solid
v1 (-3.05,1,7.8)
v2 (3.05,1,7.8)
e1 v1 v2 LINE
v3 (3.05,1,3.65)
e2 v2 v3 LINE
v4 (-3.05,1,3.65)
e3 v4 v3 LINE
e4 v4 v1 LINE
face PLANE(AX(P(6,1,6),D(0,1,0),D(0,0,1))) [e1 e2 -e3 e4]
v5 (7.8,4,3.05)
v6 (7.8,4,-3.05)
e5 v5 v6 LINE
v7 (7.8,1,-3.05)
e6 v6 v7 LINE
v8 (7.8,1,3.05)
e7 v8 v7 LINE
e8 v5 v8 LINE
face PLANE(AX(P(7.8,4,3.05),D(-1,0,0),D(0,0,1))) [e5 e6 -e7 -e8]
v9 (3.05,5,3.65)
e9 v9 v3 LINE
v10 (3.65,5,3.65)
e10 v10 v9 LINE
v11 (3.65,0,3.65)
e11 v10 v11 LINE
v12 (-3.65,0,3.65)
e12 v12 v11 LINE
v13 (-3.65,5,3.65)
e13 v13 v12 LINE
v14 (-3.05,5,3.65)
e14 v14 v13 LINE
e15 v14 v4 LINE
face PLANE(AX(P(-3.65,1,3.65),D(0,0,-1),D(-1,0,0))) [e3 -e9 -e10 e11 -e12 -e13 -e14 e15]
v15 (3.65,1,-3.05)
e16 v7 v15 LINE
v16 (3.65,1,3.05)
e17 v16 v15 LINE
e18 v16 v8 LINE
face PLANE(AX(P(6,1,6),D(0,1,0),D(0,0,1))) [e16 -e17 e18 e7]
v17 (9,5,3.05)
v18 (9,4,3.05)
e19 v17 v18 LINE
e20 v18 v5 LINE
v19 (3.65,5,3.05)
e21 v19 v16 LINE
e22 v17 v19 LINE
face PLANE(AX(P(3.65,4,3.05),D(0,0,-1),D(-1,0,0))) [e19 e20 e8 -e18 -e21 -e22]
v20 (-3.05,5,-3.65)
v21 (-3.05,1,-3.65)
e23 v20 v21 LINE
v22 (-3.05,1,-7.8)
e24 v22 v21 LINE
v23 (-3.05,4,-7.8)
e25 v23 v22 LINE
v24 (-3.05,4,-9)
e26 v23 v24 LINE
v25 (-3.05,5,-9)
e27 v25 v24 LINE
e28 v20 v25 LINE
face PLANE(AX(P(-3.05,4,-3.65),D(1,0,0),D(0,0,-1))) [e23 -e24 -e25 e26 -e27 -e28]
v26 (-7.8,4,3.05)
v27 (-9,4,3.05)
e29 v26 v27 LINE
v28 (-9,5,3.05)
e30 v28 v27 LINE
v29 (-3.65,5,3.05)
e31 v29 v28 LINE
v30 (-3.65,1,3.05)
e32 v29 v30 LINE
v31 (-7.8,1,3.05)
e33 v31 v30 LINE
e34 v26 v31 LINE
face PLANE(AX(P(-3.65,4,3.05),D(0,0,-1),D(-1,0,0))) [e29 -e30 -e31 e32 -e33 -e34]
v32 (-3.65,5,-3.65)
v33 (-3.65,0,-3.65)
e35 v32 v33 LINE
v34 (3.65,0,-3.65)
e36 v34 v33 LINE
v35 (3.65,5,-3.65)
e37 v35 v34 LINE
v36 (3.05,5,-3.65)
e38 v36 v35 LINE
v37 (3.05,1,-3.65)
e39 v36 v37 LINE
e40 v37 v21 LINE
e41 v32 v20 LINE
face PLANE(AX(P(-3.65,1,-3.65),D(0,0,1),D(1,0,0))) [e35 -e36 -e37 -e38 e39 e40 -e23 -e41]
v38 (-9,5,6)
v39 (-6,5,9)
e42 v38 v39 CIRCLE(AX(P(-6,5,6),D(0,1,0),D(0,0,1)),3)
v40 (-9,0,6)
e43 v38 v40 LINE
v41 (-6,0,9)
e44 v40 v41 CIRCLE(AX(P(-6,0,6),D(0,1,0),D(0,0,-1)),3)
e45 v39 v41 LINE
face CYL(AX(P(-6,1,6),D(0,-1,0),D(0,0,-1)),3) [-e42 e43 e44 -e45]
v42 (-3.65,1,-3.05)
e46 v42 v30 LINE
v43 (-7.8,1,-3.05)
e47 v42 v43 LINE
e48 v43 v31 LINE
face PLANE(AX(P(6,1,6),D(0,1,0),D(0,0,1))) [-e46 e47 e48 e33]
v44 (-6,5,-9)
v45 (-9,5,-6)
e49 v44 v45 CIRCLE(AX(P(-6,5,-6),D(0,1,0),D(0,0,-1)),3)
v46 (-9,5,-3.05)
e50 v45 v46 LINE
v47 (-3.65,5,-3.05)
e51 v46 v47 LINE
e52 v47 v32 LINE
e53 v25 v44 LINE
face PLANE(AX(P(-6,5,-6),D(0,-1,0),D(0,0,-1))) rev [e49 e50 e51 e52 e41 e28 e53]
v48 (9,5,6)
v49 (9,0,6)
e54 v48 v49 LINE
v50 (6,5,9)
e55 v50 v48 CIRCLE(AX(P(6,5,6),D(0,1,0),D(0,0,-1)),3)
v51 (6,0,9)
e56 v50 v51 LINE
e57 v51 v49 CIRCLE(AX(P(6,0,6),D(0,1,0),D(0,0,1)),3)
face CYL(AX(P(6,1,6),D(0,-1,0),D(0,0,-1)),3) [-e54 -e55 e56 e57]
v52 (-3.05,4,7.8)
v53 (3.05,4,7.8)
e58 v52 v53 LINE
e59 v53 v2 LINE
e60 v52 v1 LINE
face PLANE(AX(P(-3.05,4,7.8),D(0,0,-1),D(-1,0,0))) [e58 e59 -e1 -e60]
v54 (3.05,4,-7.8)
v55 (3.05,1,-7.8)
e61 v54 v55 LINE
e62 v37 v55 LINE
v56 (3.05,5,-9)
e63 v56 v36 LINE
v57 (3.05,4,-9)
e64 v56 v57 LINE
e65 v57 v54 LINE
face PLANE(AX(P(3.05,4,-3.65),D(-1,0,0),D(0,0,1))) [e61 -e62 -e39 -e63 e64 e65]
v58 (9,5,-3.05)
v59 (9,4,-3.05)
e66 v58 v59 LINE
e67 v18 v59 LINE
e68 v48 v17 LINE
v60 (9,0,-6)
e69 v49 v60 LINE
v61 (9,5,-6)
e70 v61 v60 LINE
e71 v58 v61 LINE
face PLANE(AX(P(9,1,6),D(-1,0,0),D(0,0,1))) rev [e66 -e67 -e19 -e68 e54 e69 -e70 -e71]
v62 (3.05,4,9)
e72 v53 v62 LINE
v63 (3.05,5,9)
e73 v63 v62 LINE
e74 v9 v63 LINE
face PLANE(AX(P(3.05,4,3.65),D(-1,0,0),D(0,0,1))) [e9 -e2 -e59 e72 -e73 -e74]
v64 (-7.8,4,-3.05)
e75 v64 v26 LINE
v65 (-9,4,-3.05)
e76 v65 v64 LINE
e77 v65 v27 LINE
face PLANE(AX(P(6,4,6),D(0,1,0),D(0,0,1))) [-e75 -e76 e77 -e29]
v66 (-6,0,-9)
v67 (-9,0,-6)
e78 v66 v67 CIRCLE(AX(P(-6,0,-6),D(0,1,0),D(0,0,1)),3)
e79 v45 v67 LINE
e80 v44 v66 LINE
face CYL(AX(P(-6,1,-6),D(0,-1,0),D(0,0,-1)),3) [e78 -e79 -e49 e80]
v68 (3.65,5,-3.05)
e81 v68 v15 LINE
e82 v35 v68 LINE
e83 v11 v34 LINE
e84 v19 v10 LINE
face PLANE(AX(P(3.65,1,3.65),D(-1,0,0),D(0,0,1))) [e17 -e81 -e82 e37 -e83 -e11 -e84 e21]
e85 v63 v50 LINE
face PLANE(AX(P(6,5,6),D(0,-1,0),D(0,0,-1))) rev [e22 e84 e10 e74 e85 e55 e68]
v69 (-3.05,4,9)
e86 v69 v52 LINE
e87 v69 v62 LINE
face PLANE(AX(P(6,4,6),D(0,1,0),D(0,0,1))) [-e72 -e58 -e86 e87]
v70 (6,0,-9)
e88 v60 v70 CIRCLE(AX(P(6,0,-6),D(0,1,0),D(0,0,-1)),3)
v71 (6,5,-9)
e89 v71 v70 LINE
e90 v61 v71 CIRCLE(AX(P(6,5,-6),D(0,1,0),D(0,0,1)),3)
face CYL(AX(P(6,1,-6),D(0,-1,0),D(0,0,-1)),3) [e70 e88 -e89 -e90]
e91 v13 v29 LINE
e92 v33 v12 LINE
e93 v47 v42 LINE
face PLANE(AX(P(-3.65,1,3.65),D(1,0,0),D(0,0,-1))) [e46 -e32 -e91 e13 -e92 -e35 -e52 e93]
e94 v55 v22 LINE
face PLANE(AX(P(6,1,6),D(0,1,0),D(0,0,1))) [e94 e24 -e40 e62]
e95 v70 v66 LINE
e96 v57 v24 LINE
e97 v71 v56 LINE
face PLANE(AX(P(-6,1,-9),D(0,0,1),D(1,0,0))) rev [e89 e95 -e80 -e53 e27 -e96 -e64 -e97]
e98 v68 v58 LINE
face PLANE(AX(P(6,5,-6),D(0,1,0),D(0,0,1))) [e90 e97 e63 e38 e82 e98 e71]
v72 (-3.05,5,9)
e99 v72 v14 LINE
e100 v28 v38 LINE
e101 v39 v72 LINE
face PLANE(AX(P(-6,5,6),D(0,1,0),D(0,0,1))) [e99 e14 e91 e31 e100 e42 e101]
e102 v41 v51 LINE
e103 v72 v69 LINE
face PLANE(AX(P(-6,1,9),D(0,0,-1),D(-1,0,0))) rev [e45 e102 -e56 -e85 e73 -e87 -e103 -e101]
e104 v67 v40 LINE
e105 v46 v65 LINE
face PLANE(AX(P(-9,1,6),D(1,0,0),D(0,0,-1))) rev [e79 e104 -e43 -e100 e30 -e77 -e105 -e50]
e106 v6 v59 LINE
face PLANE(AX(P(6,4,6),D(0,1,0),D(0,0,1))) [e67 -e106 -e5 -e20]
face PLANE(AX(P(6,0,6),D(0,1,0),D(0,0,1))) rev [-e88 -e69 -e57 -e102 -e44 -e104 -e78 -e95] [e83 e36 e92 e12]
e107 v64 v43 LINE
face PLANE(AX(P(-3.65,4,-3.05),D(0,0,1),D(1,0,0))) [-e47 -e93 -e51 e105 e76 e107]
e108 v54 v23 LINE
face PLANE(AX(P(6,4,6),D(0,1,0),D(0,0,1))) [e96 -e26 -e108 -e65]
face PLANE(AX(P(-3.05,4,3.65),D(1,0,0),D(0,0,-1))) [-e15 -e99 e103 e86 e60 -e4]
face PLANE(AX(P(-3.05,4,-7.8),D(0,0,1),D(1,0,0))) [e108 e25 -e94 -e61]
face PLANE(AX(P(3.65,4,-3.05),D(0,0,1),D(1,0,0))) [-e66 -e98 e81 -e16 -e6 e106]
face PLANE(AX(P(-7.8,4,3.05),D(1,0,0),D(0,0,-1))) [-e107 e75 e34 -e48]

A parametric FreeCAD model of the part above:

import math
import FreeCAD as App
import Part
import Sketcher

V = App.Vector

doc = App.newDocument("Part")
body = doc.addObject("PartDesign::Body", "Body")

# Sketch on XZ plane
sketch1 = doc.addObject("Sketcher::SketchObject", "Sketch")
body.addObject(sketch1)
sketch1.AttachmentSupport = (doc.XZ_Plane, [""])
sketch1.MapMode = "FlatFace"
sketch1.addGeometry([
    Part.LineSegment(V(-6, 9, 0), V(6, 9, 0)),  # 0
    Part.ArcOfCircle(Part.Circle(V(6, 6, 0), V(0, 0, 1), 3), math.radians(0), math.radians(90)),  # 1
    Part.LineSegment(V(9, 6, 0), V(9, -6, 0)),  # 2
    Part.ArcOfCircle(Part.Circle(V(6, -6, 0), V(0, 0, 1), 3), math.radians(-90), math.radians(0)),  # 3
    Part.LineSegment(V(6, -9, 0), V(-6, -9, 0)),  # 4
    Part.ArcOfCircle(Part.Circle(V(-6, -6, 0), V(0, 0, 1), 3), math.radians(180), math.radians(270)),  # 5
    Part.LineSegment(V(-9, -6, 0), V(-9, 6, 0)),  # 6
    Part.ArcOfCircle(Part.Circle(V(-6, 6, 0), V(0, 0, 1), 3), math.radians(90), math.radians(180)),  # 7
    Part.LineSegment(V(3.6, 3.6, 0), V(-3.6, 3.6, 0)),  # 8
    Part.LineSegment(V(-3.6, 3.6, 0), V(-3.6, -3.6, 0)),  # 9
    Part.LineSegment(V(-3.6, -3.6, 0), V(3.6, -3.6, 0)),  # 10
    Part.LineSegment(V(3.6, -3.6, 0), V(3.6, 3.6, 0)),  # 11
], False)
sketch1.addConstraint([
    Sketcher.Constraint("Tangent", 0, 2, 1, 2),
    Sketcher.Constraint("Tangent", 1, 1, 2, 1),
    Sketcher.Constraint("Tangent", 2, 2, 3, 2),
    Sketcher.Constraint("Tangent", 3, 1, 4, 1),
    Sketcher.Constraint("Tangent", 4, 2, 5, 2),
    Sketcher.Constraint("Tangent", 5, 1, 6, 1),
    Sketcher.Constraint("Tangent", 6, 2, 7, 2),
    Sketcher.Constraint("Tangent", 7, 1, 0, 1),
    Sketcher.Constraint("Coincident", 8, 2, 9, 1),
    Sketcher.Constraint("Coincident", 9, 2, 10, 1),
    Sketcher.Constraint("Coincident", 10, 2, 11, 1),
    Sketcher.Constraint("Coincident", 11, 2, 8, 1),
    Sketcher.Constraint("Horizontal", 0),
    Sketcher.Constraint("Vertical", 2),
    Sketcher.Constraint("Horizontal", 4),
    Sketcher.Constraint("Vertical", 6),
    Sketcher.Constraint("Horizontal", 8),
    Sketcher.Constraint("Vertical", 9),
    Sketcher.Constraint("Horizontal", 10),
    Sketcher.Constraint("Vertical", 11),
    Sketcher.Constraint("Equal", 1, 3),
    Sketcher.Constraint("Equal", 3, 5),
    Sketcher.Constraint("Equal", 5, 7),
    Sketcher.Constraint("Symmetric", 1, 3, 5, 3, -1, 1),
    Sketcher.Constraint("Symmetric", 8, 2, 10, 2, -1, 1),
    Sketcher.Constraint("Equal", 4, 2),
    Sketcher.Constraint("Equal", 10, 9),
    Sketcher.Constraint("Radius", 1, 3.0),
    Sketcher.Constraint("DistanceX", 0, 1, 0, 2, 12.0),
    Sketcher.Constraint("DistanceX", 8, 2, 8, 1, 7.3),
])
pad1 = doc.addObject("PartDesign::Pad", "Pad")
body.addObject(pad1)
pad1.Profile = sketch1
pad1.Length = 1
pad1.Reversed = True

# Sketch on XZ plane
sketch2 = doc.addObject("Sketcher::SketchObject", "Sketch001")
body.addObject(sketch2)
sketch2.AttachmentSupport = (doc.XZ_Plane, [""])
sketch2.MapMode = "FlatFace"
sketch2.AttachmentOffset = App.Placement(V(0, 0, -1), App.Rotation())
sketch2.addGeometry([
    Part.LineSegment(V(-6, 9, 0), V(6, 9, 0)),  # 0
    Part.ArcOfCircle(Part.Circle(V(6, 6, 0), V(0, 0, 1), 3), math.radians(0), math.radians(90)),  # 1
    Part.LineSegment(V(9, 6, 0), V(9, -6, 0)),  # 2
    Part.ArcOfCircle(Part.Circle(V(6, -6, 0), V(0, 0, 1), 3), math.radians(-90), math.radians(0)),  # 3
    Part.LineSegment(V(6, -9, 0), V(-6, -9, 0)),  # 4
    Part.ArcOfCircle(Part.Circle(V(-6, -6, 0), V(0, 0, 1), 3), math.radians(180), math.radians(270)),  # 5
    Part.LineSegment(V(-9, -6, 0), V(-9, 6, 0)),  # 6
    Part.ArcOfCircle(Part.Circle(V(-6, 6, 0), V(0, 0, 1), 3), math.radians(90), math.radians(180)),  # 7
    Part.LineSegment(V(-3, 7.8, 0), V(-3, 3.6, 0)),  # 8
    Part.LineSegment(V(-3, 3.6, 0), V(-3.6, 3.6, 0)),  # 9
    Part.LineSegment(V(-3.6, 3.6, 0), V(-3.6, 3, 0)),  # 10
    Part.LineSegment(V(-3.6, 3, 0), V(-7.8, 3, 0)),  # 11
    Part.LineSegment(V(-7.8, 3, 0), V(-7.8, -3, 0)),  # 12
    Part.LineSegment(V(-7.8, -3, 0), V(-3.6, -3, 0)),  # 13
    Part.LineSegment(V(-3.6, -3, 0), V(-3.6, -3.6, 0)),  # 14
    Part.LineSegment(V(-3.6, -3.6, 0), V(-3, -3.6, 0)),  # 15
    Part.LineSegment(V(-3, -3.6, 0), V(-3, -7.8, 0)),  # 16
    Part.LineSegment(V(-3, -7.8, 0), V(3, -7.8, 0)),  # 17
    Part.LineSegment(V(3, -7.8, 0), V(3, -3.6, 0)),  # 18
    Part.LineSegment(V(3, -3.6, 0), V(3.6, -3.6, 0)),  # 19
    Part.LineSegment(V(3.6, -3.6, 0), V(3.6, -3, 0)),  # 20
    Part.LineSegment(V(3.6, -3, 0), V(7.8, -3, 0)),  # 21
    Part.LineSegment(V(7.8, -3, 0), V(7.8, 3, 0)),  # 22
    Part.LineSegment(V(7.8, 3, 0), V(3.6, 3, 0)),  # 23
    Part.LineSegment(V(3.6, 3, 0), V(3.6, 3.6, 0)),  # 24
    Part.LineSegment(V(3.6, 3.6, 0), V(3, 3.6, 0)),  # 25
    Part.LineSegment(V(3, 3.6, 0), V(3, 7.8, 0)),  # 26
    Part.LineSegment(V(3, 7.8, 0), V(-3, 7.8, 0)),  # 27
], False)
sketch2.addConstraint([
    Sketcher.Constraint("Tangent", 0, 2, 1, 2),
    Sketcher.Constraint("Tangent", 1, 1, 2, 1),
    Sketcher.Constraint("Tangent", 2, 2, 3, 2),
    Sketcher.Constraint("Tangent", 3, 1, 4, 1),
    Sketcher.Constraint("Tangent", 4, 2, 5, 2),
    Sketcher.Constraint("Tangent", 5, 1, 6, 1),
    Sketcher.Constraint("Tangent", 6, 2, 7, 2),
    Sketcher.Constraint("Tangent", 7, 1, 0, 1),
    Sketcher.Constraint("Coincident", 8, 2, 9, 1),
    Sketcher.Constraint("Coincident", 9, 2, 10, 1),
    Sketcher.Constraint("Coincident", 10, 2, 11, 1),
    Sketcher.Constraint("Coincident", 11, 2, 12, 1),
    Sketcher.Constraint("Coincident", 12, 2, 13, 1),
    Sketcher.Constraint("Coincident", 13, 2, 14, 1),
    Sketcher.Constraint("Coincident", 14, 2, 15, 1),
    Sketcher.Constraint("Coincident", 15, 2, 16, 1),
    Sketcher.Constraint("Coincident", 16, 2, 17, 1),
    Sketcher.Constraint("Coincident", 17, 2, 18, 1),
    Sketcher.Constraint("Coincident", 18, 2, 19, 1),
    Sketcher.Constraint("Coincident", 19, 2, 20, 1),
    Sketcher.Constraint("Coincident", 20, 2, 21, 1),
    Sketcher.Constraint("Coincident", 21, 2, 22, 1),
    Sketcher.Constraint("Coincident", 22, 2, 23, 1),
    Sketcher.Constraint("Coincident", 23, 2, 24, 1),
    Sketcher.Constraint("Coincident", 24, 2, 25, 1),
    Sketcher.Constraint("Coincident", 25, 2, 26, 1),
    Sketcher.Constraint("Coincident", 26, 2, 27, 1),
    Sketcher.Constraint("Coincident", 27, 2, 8, 1),
    Sketcher.Constraint("Horizontal", 0),
    Sketcher.Constraint("Vertical", 2),
    Sketcher.Constraint("Horizontal", 4),
    Sketcher.Constraint("Vertical", 6),
    Sketcher.Constraint("Vertical", 8),
    Sketcher.Constraint("Horizontal", 9),
    Sketcher.Constraint("Vertical", 10),
    Sketcher.Constraint("Horizontal", 11),
    Sketcher.Constraint("Vertical", 12),
    Sketcher.Constraint("Horizontal", 13),
    Sketcher.Constraint("Vertical", 14),
    Sketcher.Constraint("Horizontal", 15),
    Sketcher.Constraint("Vertical", 16),
    Sketcher.Constraint("Horizontal", 17),
    Sketcher.Constraint("Vertical", 18),
    Sketcher.Constraint("Horizontal", 19),
    Sketcher.Constraint("Vertical", 20),
    Sketcher.Constraint("Horizontal", 21),
    Sketcher.Constraint("Vertical", 22),
    Sketcher.Constraint("Horizontal", 23),
    Sketcher.Constraint("Vertical", 24),
    Sketcher.Constraint("Horizontal", 25),
    Sketcher.Constraint("Vertical", 26),
    Sketcher.Constraint("Horizontal", 27),
    Sketcher.Constraint("Equal", 1, 3),
    Sketcher.Constraint("Equal", 3, 5),
    Sketcher.Constraint("Equal", 5, 7),
    Sketcher.Constraint("Symmetric", 1, 3, 5, 3, -1, 1),
    Sketcher.Constraint("Symmetric", 8, 2, 18, 2, -1, 1),
    Sketcher.Constraint("Symmetric", 10, 2, 20, 2, -1, 1),
    Sketcher.Constraint("Symmetric", 12, 2, 22, 2, -1, 1),
    Sketcher.Constraint("Symmetric", 14, 2, 24, 2, -1, 1),
    Sketcher.Constraint("Symmetric", 16, 2, 26, 2, -1, 1),
    Sketcher.Constraint("Symmetric", 15, 2, 18, 2, -2),
    Sketcher.Constraint("Symmetric", 13, 2, 20, 2, -2),
    Sketcher.Constraint("Equal", 4, 2),
    Sketcher.Constraint("Equal", 23, 8),
    Sketcher.Constraint("Equal", 25, 10),
    Sketcher.Constraint("Equal", 27, 12),
    Sketcher.Constraint("Radius", 1, 3.0),
    Sketcher.Constraint("DistanceX", 0, 1, 0, 2, 12.0),
    Sketcher.Constraint("DistanceX", 9, 2, 9, 1, 0.6),
    Sketcher.Constraint("DistanceX", 17, 1, 17, 2, 6.1),
    Sketcher.Constraint("DistanceX", 11, 2, 11, 1, 4.15),
])
pad2 = doc.addObject("PartDesign::Pad", "Pad001")
body.addObject(pad2)
pad2.Profile = sketch2
pad2.Length = 3
pad2.Reversed = True

# Sketch on XZ plane
sketch3 = doc.addObject("Sketcher::SketchObject", "Sketch002")
body.addObject(sketch3)
sketch3.AttachmentSupport = (doc.XZ_Plane, [""])
sketch3.MapMode = "FlatFace"
sketch3.AttachmentOffset = App.Placement(V(0, 0, -4), App.Rotation())
sketch3.addGeometry([
    Part.LineSegment(V(-3.6, 3.6, 0), V(-3.6, 3, 0)),  # 0
    Part.LineSegment(V(-3.6, 3, 0), V(-9, 3, 0)),  # 1
    Part.LineSegment(V(-9, 3, 0), V(-9, 6, 0)),  # 2
    Part.ArcOfCircle(Part.Circle(V(-6, 6, 0), V(0, 0, 1), 3), math.radians(90), math.radians(180)),  # 3
    Part.LineSegment(V(-6, 9, 0), V(-3, 9, 0)),  # 4
    Part.LineSegment(V(-3, 9, 0), V(-3, 3.6, 0)),  # 5
    Part.LineSegment(V(-3, 3.6, 0), V(-3.6, 3.6, 0)),  # 6
    Part.LineSegment(V(3, 9, 0), V(6, 9, 0)),  # 7
    Part.ArcOfCircle(Part.Circle(V(6, 6, 0), V(0, 0, 1), 3), math.radians(0), math.radians(90)),  # 8
    Part.LineSegment(V(9, 6, 0), V(9, 3, 0)),  # 9
    Part.LineSegment(V(9, 3, 0), V(3.6, 3, 0)),  # 10
    Part.LineSegment(V(3.6, 3, 0), V(3.6, 3.6, 0)),  # 11
    Part.LineSegment(V(3.6, 3.6, 0), V(3, 3.6, 0)),  # 12
    Part.LineSegment(V(3, 3.6, 0), V(3, 9, 0)),  # 13
    Part.LineSegment(V(3.6, -3.6, 0), V(3.6, -3, 0)),  # 14
    Part.LineSegment(V(3.6, -3, 0), V(9, -3, 0)),  # 15
    Part.LineSegment(V(9, -3, 0), V(9, -6, 0)),  # 16
    Part.ArcOfCircle(Part.Circle(V(6, -6, 0), V(0, 0, 1), 3), math.radians(-90), math.radians(0)),  # 17
    Part.LineSegment(V(6, -9, 0), V(3, -9, 0)),  # 18
    Part.LineSegment(V(3, -9, 0), V(3, -3.6, 0)),  # 19
    Part.LineSegment(V(3, -3.6, 0), V(3.6, -3.6, 0)),  # 20
    Part.LineSegment(V(-3, -9, 0), V(-6, -9, 0)),  # 21
    Part.ArcOfCircle(Part.Circle(V(-6, -6, 0), V(0, 0, 1), 3), math.radians(180), math.radians(270)),  # 22
    Part.LineSegment(V(-9, -6, 0), V(-9, -3, 0)),  # 23
    Part.LineSegment(V(-9, -3, 0), V(-3.6, -3, 0)),  # 24
    Part.LineSegment(V(-3.6, -3, 0), V(-3.6, -3.6, 0)),  # 25
    Part.LineSegment(V(-3.6, -3.6, 0), V(-3, -3.6, 0)),  # 26
    Part.LineSegment(V(-3, -3.6, 0), V(-3, -9, 0)),  # 27
], False)
sketch3.addConstraint([
    Sketcher.Constraint("Coincident", 0, 2, 1, 1),
    Sketcher.Constraint("Coincident", 1, 2, 2, 1),
    Sketcher.Constraint("Tangent", 2, 2, 3, 2),
    Sketcher.Constraint("Tangent", 3, 1, 4, 1),
    Sketcher.Constraint("Coincident", 4, 2, 5, 1),
    Sketcher.Constraint("Coincident", 5, 2, 6, 1),
    Sketcher.Constraint("Coincident", 6, 2, 0, 1),
    Sketcher.Constraint("Tangent", 7, 2, 8, 2),
    Sketcher.Constraint("Tangent", 8, 1, 9, 1),
    Sketcher.Constraint("Coincident", 9, 2, 10, 1),
    Sketcher.Constraint("Coincident", 10, 2, 11, 1),
    Sketcher.Constraint("Coincident", 11, 2, 12, 1),
    Sketcher.Constraint("Coincident", 12, 2, 13, 1),
    Sketcher.Constraint("Coincident", 13, 2, 7, 1),
    Sketcher.Constraint("Coincident", 14, 2, 15, 1),
    Sketcher.Constraint("Coincident", 15, 2, 16, 1),
    Sketcher.Constraint("Tangent", 16, 2, 17, 2),
    Sketcher.Constraint("Tangent", 17, 1, 18, 1),
    Sketcher.Constraint("Coincident", 18, 2, 19, 1),
    Sketcher.Constraint("Coincident", 19, 2, 20, 1),
    Sketcher.Constraint("Coincident", 20, 2, 14, 1),
    Sketcher.Constraint("Tangent", 21, 2, 22, 2),
    Sketcher.Constraint("Tangent", 22, 1, 23, 1),
    Sketcher.Constraint("Coincident", 23, 2, 24, 1),
    Sketcher.Constraint("Coincident", 24, 2, 25, 1),
    Sketcher.Constraint("Coincident", 25, 2, 26, 1),
    Sketcher.Constraint("Coincident", 26, 2, 27, 1),
    Sketcher.Constraint("Coincident", 27, 2, 21, 1),
    Sketcher.Constraint("Vertical", 0),
    Sketcher.Constraint("Horizontal", 1),
    Sketcher.Constraint("Vertical", 2),
    Sketcher.Constraint("Horizontal", 4),
    Sketcher.Constraint("Vertical", 5),
    Sketcher.Constraint("Horizontal", 6),
    Sketcher.Constraint("Horizontal", 7),
    Sketcher.Constraint("Vertical", 9),
    Sketcher.Constraint("Horizontal", 10),
    Sketcher.Constraint("Vertical", 11),
    Sketcher.Constraint("Horizontal", 12),
    Sketcher.Constraint("Vertical", 13),
    Sketcher.Constraint("Vertical", 14),
    Sketcher.Constraint("Horizontal", 15),
    Sketcher.Constraint("Vertical", 16),
    Sketcher.Constraint("Horizontal", 18),
    Sketcher.Constraint("Vertical", 19),
    Sketcher.Constraint("Horizontal", 20),
    Sketcher.Constraint("Horizontal", 21),
    Sketcher.Constraint("Vertical", 23),
    Sketcher.Constraint("Horizontal", 24),
    Sketcher.Constraint("Vertical", 25),
    Sketcher.Constraint("Horizontal", 26),
    Sketcher.Constraint("Vertical", 27),
    Sketcher.Constraint("Equal", 3, 8),
    Sketcher.Constraint("Equal", 8, 17),
    Sketcher.Constraint("Equal", 17, 22),
    Sketcher.Constraint("Symmetric", 3, 3, 17, 3, -1, 1),
    Sketcher.Constraint("Symmetric", 8, 3, 22, 3, -1, 1),
    Sketcher.Constraint("Symmetric", 0, 2, 14, 2, -1, 1),
    Sketcher.Constraint("Symmetric", 5, 2, 19, 2, -1, 1),
    Sketcher.Constraint("Symmetric", 10, 2, 24, 2, -1, 1),
    Sketcher.Constraint("Symmetric", 12, 2, 26, 2, -1, 1),
    Sketcher.Constraint("Symmetric", 3, 3, 8, 3, -2),
    Sketcher.Constraint("Symmetric", 0, 2, 10, 2, -2),
    Sketcher.Constraint("Symmetric", 5, 2, 12, 2, -2),
    Sketcher.Constraint("Equal", 26, 0),
    Sketcher.Constraint("Equal", 21, 2),
    Sketcher.Constraint("Radius", 3, 3.0),
    Sketcher.Constraint("DistanceX", 6, 2, 6, 1, 0.6),
    Sketcher.Constraint("DistanceX", 3, 3, -1, 1, 6.0),
    Sketcher.Constraint("DistanceY", -1, 1, 3, 3, 6.0),
    Sketcher.Constraint("DistanceX", 1, 2, 1, 1, 5.35),
])
pad3 = doc.addObject("PartDesign::Pad", "Pad002")
body.addObject(pad3)
pad3.Profile = sketch3
pad3.Length = 1
pad3.Reversed = True

doc.recompute()
